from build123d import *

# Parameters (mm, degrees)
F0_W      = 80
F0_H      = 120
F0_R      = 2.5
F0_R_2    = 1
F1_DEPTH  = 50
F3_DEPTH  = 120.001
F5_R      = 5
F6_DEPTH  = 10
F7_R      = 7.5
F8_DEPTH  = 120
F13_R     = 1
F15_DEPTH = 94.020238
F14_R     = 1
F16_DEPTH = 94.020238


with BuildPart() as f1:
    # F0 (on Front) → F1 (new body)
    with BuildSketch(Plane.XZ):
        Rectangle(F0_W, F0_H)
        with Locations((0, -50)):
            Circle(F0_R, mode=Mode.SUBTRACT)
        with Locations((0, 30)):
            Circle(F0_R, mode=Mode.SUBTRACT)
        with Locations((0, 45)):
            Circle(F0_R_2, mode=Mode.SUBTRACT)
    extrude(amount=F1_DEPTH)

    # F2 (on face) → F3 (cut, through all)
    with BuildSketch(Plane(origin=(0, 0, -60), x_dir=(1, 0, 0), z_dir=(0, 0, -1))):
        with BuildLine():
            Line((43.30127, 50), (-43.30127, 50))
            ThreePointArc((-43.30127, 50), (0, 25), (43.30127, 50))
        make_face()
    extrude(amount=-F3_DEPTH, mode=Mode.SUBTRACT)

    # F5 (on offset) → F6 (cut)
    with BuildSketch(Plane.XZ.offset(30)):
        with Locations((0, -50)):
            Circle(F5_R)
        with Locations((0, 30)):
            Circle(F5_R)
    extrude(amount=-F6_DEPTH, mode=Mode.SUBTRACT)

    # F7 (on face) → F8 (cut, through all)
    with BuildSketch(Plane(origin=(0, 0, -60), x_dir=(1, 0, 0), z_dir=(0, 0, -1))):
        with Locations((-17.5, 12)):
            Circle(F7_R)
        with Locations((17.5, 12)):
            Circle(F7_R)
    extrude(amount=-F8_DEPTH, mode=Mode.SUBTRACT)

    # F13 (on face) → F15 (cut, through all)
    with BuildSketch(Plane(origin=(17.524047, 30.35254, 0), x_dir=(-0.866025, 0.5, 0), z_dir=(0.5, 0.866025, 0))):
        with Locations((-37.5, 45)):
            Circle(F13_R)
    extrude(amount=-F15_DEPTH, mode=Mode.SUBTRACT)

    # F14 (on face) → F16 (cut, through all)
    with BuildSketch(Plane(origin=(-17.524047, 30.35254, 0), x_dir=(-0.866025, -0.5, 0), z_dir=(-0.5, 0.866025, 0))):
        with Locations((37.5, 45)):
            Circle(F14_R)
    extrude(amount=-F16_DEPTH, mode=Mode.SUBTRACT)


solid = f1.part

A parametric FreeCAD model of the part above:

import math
import FreeCAD as App
import Part
import Sketcher
from FreeCAD import Vector


def add_polygon(sketch, points):
    """Adds a closed chain of lines whose ends are joined by coincident constraints."""
    first, n = sketch.GeometryCount, len(points)
    for a, b in zip(points, points[1:] + points[:1]):
        sketch.addGeometry(Part.LineSegment(App.Vector(*a, 0), App.Vector(*b, 0)), False)
    for i in range(n):
        sketch.addConstraint(Sketcher.Constraint("Coincident", first + i, 2, first + (i + 1) % n, 1))

doc = App.newDocument("Part")
body = doc.addObject("PartDesign::Body", "Body")

sketch1 = doc.addObject("Sketcher::SketchObject", "Sketch")
body.addObject(sketch1)
sketch1.AttachmentSupport = (doc.XZ_Plane, [""])
sketch1.MapMode = "FlatFace"
add_polygon(sketch1, [(-40, 60), (-40, -60), (40, -60), (40, 60)])
sketch1.addGeometry(Part.Circle(Vector(0, -50, 0), Vector(0, 0, 1), 2.5), False)
sketch1.addGeometry(Part.Circle(Vector(0, 30, 0), Vector(0, 0, 1), 2.5), False)
sketch1.addGeometry(Part.Circle(Vector(0, 45, 0), Vector(0, 0, 1), 1), False)
sketch1.addConstraint([
    Sketcher.Constraint("Vertical", 0),
    Sketcher.Constraint("Horizontal", 1),
    Sketcher.Constraint("Vertical", 2),
    Sketcher.Constraint("Horizontal", 3),
    Sketcher.Constraint("Equal", 4, 5),
    Sketcher.Constraint("Symmetric", 0, 2, 2, 2, -1, 1),
    Sketcher.Constraint("PointOnObject", 4, 3, -2),
    Sketcher.Constraint("PointOnObject", 5, 3, -2),
    Sketcher.Constraint("PointOnObject", 6, 3, -2),
    Sketcher.Constraint("Diameter", 4, 5.0),
    Sketcher.Constraint("Diameter", 6, 2.0),
    Sketcher.Constraint("DistanceX", 1, 1, 1, 2, 80.0),
    Sketcher.Constraint("DistanceY", 0, 2, 0, 1, 120.0),
    Sketcher.Constraint("DistanceY", 4, 3, -1, 1, 50.0),
    Sketcher.Constraint("DistanceY", -1, 1, 5, 3, 30.0),
    Sketcher.Constraint("DistanceY", -1, 1, 6, 3, 45.0),
])
pad1 = doc.addObject("PartDesign::Pad", "Pad")
body.addObject(pad1)
pad1.Profile = sketch1
pad1.Length = 50

sketch2 = doc.addObject("Sketcher::SketchObject", "Sketch001")
body.addObject(sketch2)
sketch2.AttachmentSupport = (doc.XY_Plane, [""])
sketch2.MapMode = "FlatFace"
sketch2.AttachmentOffset = App.Placement(Vector(0, 0, -60), App.Rotation())
sketch2.addGeometry([
    Part.LineSegment(Vector(43, -50, 0), Vector(-43, -50, 0)),
    Part.ArcOfCircle(Part.Circle(Vector(0, -75, 0), Vector(0, 0, 1), 50), math.radians(30), math.radians(150)),
], False)
sketch2.addConstraint([
    Sketcher.Constraint("Coincident", 0, 1, 1, 1),
    Sketcher.Constraint("Coincident", 1, 2, 0, 2),
    Sketcher.Constraint("Horizontal", 0),
    Sketcher.Constraint("PointOnObject", 1, 3, -2),
    Sketcher.Constraint("Radius", 1, 50.0),
    Sketcher.Constraint("DistanceY", 1, 3, -1, 1, 75.0),
    Sketcher.Constraint("DistanceY", 0, 1, -1, 1, 50.0),
])
pocket1 = doc.addObject("PartDesign::Pocket", "Pocket")
body.addObject(pocket1)
pocket1.Profile = sketch2
pocket1.Type = "ThroughAll"
pocket1.Reversed = True

sketch3 = doc.addObject("Sketcher::SketchObject", "Sketch002")
body.addObject(sketch3)
sketch3.AttachmentSupport = (doc.XZ_Plane, [""])
sketch3.MapMode = "FlatFace"
sketch3.AttachmentOffset = App.Placement(Vector(0, 0, 30), App.Rotation())
sketch3.addGeometry([
    Part.Circle(Vector(0, -50, 0), Vector(0, 0, 1), 5),
    Part.Circle(Vector(0, 30, 0), Vector(0, 0, 1), 5),
], False)
sketch3.addConstraint([
    Sketcher.Constraint("Equal", 0, 1),
    Sketcher.Constraint("PointOnObject", 0, 3, -2),
    Sketcher.Constraint("PointOnObject", 1, 3, -2),
    Sketcher.Constraint("Diameter", 0, 10.0),
    Sketcher.Constraint("DistanceY", 0, 3, -1, 1, 50.0),
    Sketcher.Constraint("DistanceY", -1, 1, 1, 3, 30.0),
])
pocket2 = doc.addObject("PartDesign::Pocket", "Pocket001")
body.addObject(pocket2)
pocket2.Profile = sketch3
pocket2.Length = 10

sketch4 = doc.addObject("Sketcher::SketchObject", "Sketch003")
body.addObject(sketch4)
sketch4.AttachmentSupport = (doc.XY_Plane, [""])
sketch4.MapMode = "FlatFace"
sketch4.AttachmentOffset = App.Placement(Vector(0, 0, -60), App.Rotation())
sketch4.addGeometry([
    Part.Circle(Vector(-18, -12, 0), Vector(0, 0, 1), 8),
    Part.Circle(Vector(18, -12, 0), Vector(0, 0, 1), 8),
], False)
sketch4.addConstraint([
    Sketcher.Constraint("Equal", 0, 1),
    Sketcher.Constraint("Symmetric", 0, 3, 1, 3, -2),
    Sketcher.Constraint("Diameter", 0, 15.0),
    Sketcher.Constraint("DistanceY", 0, 3, -1, 1, 12.0),
    Sketcher.Constraint("DistanceX", 0, 3, 1, 3, 35.0),
])
pocket3 = doc.addObject("PartDesign::Pocket", "Pocket002")
body.addObject(pocket3)
pocket3.Profile = sketch4
pocket3.Type = "ThroughAll"
pocket3.Reversed = True

sketch5 = doc.addObject("Sketcher::SketchObject", "Sketch004")
body.addObject(sketch5)
sketch5.Placement = App.Placement(Vector(17.524047, 30.35254, 0), App.Rotation(Vector(-0.866025303, 0.500000175, 0), Vector(0, 0, 1), Vector(0.500000175, 0.866025303, 0), "ZXY"))
sketch5.addGeometry(Part.Circle(Vector(-37.5, 45, 0), Vector(0, 0, 1), 1), False)
sketch5.addConstraint([
    Sketcher.Constraint("Diameter", 0, 2.0),
    Sketcher.Constraint("DistanceY", -1, 1, 0, 3, 45.0),
    Sketcher.Constraint("DistanceX", 0, 3, -1, 1, 37.5),
])
pocket4 = doc.addObject("PartDesign::Pocket", "Pocket003")
body.addObject(pocket4)
pocket4.Profile = sketch5
pocket4.Type = "ThroughAll"

sketch6 = doc.addObject("Sketcher::SketchObject", "Sketch005")
body.addObject(sketch6)
sketch6.Placement = App.Placement(Vector(-17.524047, 30.35254, 0), App.Rotation(Vector(-0.866025303, -0.500000175, 0), Vector(0, 0, 1), Vector(-0.500000175, 0.866025303, 0), "ZXY"))
sketch6.addGeometry(Part.Circle(Vector(37.5, 45, 0), Vector(0, 0, 1), 1), False)
sketch6.addConstraint([
    Sketcher.Constraint("Diameter", 0, 2.0),
    Sketcher.Constraint("DistanceY", -1, 1, 0, 3, 45.0),
    Sketcher.Constraint("DistanceX", -1, 1, 0, 3, 37.5),
])
pocket5 = doc.addObject("PartDesign::Pocket", "Pocket004")
body.addObject(pocket5)
pocket5.Profile = sketch6
pocket5.Type = "ThroughAll"

doc.recompute()
